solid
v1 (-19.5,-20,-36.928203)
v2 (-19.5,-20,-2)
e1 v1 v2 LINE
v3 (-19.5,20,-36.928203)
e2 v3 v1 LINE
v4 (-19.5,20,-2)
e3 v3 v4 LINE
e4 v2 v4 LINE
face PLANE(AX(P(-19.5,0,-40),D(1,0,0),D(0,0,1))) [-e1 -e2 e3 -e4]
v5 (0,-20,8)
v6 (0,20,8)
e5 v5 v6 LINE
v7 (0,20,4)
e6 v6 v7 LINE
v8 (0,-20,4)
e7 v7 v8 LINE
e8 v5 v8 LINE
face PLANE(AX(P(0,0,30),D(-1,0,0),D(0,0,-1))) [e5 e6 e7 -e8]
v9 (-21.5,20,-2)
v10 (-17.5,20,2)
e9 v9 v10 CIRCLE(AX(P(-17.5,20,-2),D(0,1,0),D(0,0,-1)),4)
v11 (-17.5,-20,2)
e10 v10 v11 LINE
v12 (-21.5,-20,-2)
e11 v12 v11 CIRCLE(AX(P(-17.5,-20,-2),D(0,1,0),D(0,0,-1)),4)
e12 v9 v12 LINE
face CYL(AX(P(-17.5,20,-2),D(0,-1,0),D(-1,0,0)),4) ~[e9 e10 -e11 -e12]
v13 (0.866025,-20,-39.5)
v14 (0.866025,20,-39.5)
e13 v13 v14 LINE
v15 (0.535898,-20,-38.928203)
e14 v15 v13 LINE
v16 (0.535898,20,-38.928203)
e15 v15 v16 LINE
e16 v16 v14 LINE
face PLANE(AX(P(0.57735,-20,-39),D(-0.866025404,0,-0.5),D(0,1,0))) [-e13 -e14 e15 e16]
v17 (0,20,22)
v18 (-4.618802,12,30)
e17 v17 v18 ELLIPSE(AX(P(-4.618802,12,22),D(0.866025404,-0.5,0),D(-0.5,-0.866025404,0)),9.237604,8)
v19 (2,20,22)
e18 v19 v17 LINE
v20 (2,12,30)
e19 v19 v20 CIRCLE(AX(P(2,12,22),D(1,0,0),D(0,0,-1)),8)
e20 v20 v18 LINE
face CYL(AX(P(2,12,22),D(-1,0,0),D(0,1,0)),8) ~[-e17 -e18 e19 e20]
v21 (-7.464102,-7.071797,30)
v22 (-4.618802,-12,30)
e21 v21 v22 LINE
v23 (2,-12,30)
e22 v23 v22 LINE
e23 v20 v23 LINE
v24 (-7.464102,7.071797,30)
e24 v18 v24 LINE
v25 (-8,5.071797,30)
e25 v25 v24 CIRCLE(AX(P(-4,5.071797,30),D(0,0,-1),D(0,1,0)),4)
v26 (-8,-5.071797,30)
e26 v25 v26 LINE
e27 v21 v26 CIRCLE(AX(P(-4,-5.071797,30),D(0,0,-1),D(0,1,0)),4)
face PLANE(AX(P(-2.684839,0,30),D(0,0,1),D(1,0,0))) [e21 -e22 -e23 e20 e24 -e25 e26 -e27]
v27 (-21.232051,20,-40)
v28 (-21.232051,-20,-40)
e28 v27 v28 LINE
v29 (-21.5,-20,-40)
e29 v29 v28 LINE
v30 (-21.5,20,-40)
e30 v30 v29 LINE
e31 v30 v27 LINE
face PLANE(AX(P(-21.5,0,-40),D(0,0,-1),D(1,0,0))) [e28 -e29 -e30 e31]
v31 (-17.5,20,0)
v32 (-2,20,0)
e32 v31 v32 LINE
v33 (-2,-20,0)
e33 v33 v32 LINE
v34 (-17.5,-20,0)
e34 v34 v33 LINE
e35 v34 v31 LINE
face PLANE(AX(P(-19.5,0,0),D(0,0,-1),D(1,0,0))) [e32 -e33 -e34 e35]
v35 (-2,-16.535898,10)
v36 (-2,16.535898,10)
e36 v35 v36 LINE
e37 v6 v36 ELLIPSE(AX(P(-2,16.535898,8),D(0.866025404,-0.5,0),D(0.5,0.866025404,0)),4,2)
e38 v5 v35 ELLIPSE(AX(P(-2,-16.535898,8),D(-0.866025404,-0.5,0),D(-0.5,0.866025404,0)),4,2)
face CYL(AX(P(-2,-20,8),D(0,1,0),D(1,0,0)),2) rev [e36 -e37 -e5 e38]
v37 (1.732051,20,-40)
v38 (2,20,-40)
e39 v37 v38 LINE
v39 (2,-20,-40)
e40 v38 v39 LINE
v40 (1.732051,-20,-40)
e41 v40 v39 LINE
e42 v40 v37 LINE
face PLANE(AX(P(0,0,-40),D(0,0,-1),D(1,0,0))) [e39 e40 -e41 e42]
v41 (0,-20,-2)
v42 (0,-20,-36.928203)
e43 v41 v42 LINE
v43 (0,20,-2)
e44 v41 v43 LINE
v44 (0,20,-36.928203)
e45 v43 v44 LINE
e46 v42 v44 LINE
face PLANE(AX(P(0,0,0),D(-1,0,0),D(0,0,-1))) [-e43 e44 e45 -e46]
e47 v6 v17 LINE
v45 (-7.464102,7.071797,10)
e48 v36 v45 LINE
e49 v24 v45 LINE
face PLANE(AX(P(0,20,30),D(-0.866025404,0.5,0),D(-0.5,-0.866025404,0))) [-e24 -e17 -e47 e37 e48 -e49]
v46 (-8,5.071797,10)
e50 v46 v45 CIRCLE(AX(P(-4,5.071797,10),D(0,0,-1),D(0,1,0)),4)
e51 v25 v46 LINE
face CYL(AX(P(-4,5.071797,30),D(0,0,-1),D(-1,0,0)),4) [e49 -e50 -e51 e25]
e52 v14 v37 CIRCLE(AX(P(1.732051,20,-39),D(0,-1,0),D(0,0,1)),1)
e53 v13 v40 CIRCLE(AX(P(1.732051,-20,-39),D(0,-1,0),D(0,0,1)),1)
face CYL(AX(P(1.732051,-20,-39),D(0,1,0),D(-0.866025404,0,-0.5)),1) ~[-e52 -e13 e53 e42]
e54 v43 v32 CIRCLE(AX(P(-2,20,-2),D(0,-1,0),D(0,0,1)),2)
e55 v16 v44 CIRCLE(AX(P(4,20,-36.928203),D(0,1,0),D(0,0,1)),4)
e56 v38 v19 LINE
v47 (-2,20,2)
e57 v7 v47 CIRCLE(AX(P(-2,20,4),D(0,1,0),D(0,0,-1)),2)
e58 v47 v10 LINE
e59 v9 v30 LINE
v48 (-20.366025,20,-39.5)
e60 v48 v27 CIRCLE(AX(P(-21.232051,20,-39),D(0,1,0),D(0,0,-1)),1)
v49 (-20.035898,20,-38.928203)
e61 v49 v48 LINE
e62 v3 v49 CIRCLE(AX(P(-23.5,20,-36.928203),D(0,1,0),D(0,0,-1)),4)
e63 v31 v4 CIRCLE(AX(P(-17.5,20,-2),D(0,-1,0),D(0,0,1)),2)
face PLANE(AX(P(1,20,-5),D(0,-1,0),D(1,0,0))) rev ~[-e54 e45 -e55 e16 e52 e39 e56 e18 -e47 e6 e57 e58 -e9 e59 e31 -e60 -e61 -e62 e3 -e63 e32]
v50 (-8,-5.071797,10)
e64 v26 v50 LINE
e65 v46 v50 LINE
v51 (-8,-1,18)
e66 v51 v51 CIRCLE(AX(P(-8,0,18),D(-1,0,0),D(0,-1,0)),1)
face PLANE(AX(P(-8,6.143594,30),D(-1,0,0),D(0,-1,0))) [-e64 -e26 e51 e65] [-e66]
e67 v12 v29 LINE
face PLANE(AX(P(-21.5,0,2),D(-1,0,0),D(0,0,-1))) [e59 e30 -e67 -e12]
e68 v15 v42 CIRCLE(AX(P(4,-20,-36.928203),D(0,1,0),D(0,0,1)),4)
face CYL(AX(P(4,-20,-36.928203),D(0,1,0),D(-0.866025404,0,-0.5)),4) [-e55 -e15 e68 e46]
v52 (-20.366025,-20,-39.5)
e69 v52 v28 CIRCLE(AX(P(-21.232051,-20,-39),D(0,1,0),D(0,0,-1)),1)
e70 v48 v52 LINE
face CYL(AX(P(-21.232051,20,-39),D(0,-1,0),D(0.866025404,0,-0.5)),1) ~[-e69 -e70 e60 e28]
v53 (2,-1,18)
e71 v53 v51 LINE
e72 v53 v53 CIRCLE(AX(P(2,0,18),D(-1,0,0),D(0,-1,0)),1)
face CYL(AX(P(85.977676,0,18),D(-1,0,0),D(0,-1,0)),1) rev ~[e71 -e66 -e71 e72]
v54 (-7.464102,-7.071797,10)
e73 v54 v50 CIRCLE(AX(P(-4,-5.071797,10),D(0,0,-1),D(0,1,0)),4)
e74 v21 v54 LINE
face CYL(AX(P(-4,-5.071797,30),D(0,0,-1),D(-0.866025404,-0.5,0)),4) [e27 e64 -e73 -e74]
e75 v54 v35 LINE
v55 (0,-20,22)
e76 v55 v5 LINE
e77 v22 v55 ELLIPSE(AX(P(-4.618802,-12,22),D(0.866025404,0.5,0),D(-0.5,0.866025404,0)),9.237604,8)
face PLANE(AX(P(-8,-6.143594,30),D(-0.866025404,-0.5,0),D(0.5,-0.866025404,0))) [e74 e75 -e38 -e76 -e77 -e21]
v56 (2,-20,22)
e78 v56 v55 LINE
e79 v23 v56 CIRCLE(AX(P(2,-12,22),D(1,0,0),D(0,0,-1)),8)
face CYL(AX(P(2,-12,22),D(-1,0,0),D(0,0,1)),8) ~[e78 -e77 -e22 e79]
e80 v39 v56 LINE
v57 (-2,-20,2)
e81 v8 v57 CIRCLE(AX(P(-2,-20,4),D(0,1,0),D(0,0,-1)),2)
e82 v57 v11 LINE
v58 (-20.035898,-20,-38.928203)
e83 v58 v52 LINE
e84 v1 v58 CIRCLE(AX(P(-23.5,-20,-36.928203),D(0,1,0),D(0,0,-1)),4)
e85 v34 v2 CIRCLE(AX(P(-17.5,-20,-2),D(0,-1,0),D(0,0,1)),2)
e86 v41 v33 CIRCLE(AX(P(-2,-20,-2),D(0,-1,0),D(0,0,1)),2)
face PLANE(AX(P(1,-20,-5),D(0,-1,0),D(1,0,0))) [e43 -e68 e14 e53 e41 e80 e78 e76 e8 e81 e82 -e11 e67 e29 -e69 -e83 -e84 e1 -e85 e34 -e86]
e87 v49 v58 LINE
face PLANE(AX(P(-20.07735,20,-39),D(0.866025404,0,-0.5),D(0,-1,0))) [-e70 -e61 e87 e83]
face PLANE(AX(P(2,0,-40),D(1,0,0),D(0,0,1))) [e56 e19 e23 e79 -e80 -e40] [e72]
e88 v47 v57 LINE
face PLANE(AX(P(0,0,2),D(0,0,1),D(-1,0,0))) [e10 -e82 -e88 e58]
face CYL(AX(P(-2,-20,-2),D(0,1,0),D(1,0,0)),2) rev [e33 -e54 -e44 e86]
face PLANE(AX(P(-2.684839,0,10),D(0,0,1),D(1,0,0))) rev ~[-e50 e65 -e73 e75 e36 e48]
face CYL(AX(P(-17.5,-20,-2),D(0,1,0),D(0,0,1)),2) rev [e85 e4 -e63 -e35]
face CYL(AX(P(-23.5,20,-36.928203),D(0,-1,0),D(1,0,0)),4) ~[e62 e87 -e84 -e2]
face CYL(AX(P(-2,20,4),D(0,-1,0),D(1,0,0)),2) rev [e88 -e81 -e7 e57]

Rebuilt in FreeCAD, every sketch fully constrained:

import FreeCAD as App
import Part
import Sketcher
from FreeCAD import Vector
Q = App.Units.Quantity


def edges_at(feature, points):
    """Names of the edges that pass closest to the given points."""
    edges = feature.Shape.Edges
    near = lambda p: min(range(len(edges)), key=lambda i: edges[i].distToShape(Part.Vertex(*p))[0])
    return sorted({f"Edge{near(p) + 1}" for p in points})


def add_polygon(sketch, points):
    """Adds a closed chain of lines whose ends are joined by coincident constraints."""
    first, n = sketch.GeometryCount, len(points)
    for a, b in zip(points, points[1:] + points[:1]):
        sketch.addGeometry(Part.LineSegment(App.Vector(*a, 0), App.Vector(*b, 0)), False)
    for i in range(n):
        sketch.addConstraint(Sketcher.Constraint("Coincident", first + i, 2, first + (i + 1) % n, 1))

doc = App.newDocument("Part")
body = doc.addObject("PartDesign::Body", "Body")

sketch1 = body.newObject("Sketcher::SketchObject", "Sketch")
sketch1.AttachmentSupport = (doc.getObject("XZ_Plane"), [""])
sketch1.MapMode = "FlatFace"
add_polygon(sketch1, [(0, -40), (2, -40), (2, 30), (0, 30), (0, 2), (-21.5, 2), (-21.5, -40), (-19.5, -40), (-19.5, 0), (0, 0)])
sketch1.addConstraint([
    Sketcher.Constraint("Horizontal", 0),
    Sketcher.Constraint("Vertical", 1),
    Sketcher.Constraint("Horizontal", 2),
    Sketcher.Constraint("Vertical", 3),
    Sketcher.Constraint("Horizontal", 4),
    Sketcher.Constraint("Vertical", 5),
    Sketcher.Constraint("Horizontal", 6),
    Sketcher.Constraint("Vertical", 7),
    Sketcher.Constraint("Horizontal", 8),
    Sketcher.Constraint("Vertical", 9),
    Sketcher.Constraint("Coincident", 8, 2, -1, 1),
    Sketcher.Constraint("PointOnObject", 2, 2, -2),
    Sketcher.Constraint("Horizontal", 0, 2, 5, 2),
    Sketcher.Constraint("Equal", 2, 6),
    Sketcher.Constraint("DistanceX", 0, 1, 0, 2, Q("2 mm")),
    Sketcher.Constraint("DistanceY", 1, 1, 1, 2, Q("70 mm")),
    Sketcher.Constraint("DistanceY", 3, 2, 3, 1, Q("28 mm")),
    Sketcher.Constraint("DistanceY", 7, 1, 7, 2, Q("40 mm")),
    Sketcher.Constraint("DistanceX", 4, 2, 4, 1, Q("21.5 mm")),
])
pad1 = body.newObject("PartDesign::Pad", "Pad")
pad1.Profile = sketch1
pad1.Length = 40
pad1.Midplane = True

sketch2 = body.newObject("Sketcher::SketchObject", "Sketch001")
sketch2.AttachmentSupport = (doc.getObject("XY_Plane"), [""])
sketch2.MapMode = "FlatFace"
sketch2.AttachmentOffset = App.Placement(Vector(0, 0, 30), App.Rotation())
add_polygon(sketch2, [(0, -20), (0, 20), (-8, 6), (-8, -6)])
sketch2.addConstraint([
    Sketcher.Constraint("Vertical", 0),
    Sketcher.Constraint("Vertical", 2),
    Sketcher.Constraint("Symmetric", 0, 2, 3, 2, -1, 1),
    Sketcher.Constraint("Equal", 1, 3),
    Sketcher.Constraint("DistanceY", 0, 1, 0, 2, Q("40 mm")),
    Sketcher.Constraint("Angle", 1, Q("-120 deg")),
    Sketcher.Constraint("Distance", 1, Q("16 mm")),
])
pad2 = body.newObject("PartDesign::Pad", "Pad001")
pad2.Profile = sketch2
pad2.Length = 20
pad2.Reversed = True

sketch3 = body.newObject("Sketcher::SketchObject", "Sketch002")
sketch3.AttachmentSupport = (doc.getObject("YZ_Plane"), [""])
sketch3.MapMode = "FlatFace"
sketch3.AttachmentOffset = App.Placement(Vector(0, 0, 2), App.Rotation())
sketch3.addGeometry(Part.Circle(Vector(0, 18, 0), Vector(0, 0, 1), 1), False)
sketch3.addConstraint([
    Sketcher.Constraint("PointOnObject", 0, 3, -2),
    Sketcher.Constraint("Diameter", 0, Q("2 mm")),
    Sketcher.Constraint("DistanceY", -1, 1, 0, 3, Q("18 mm")),
])
doc.recompute()
hole = body.newObject("PartDesign::Hole", "Hole")
hole.Profile = sketch3
hole.ThreadType = "None"
hole.Diameter = 2
hole.DepthType = "ThroughAll"
doc.recompute()

chamfer = body.newObject("PartDesign::Chamfer", "Chamfer")
chamfer.Base = (hole, edges_at(hole, [(-19.5, 0, -40)]))
chamfer.ChamferType = "Two distances"
chamfer.Size = 2
chamfer.Size2 = 1.154701
chamfer.FlipDirection = True
doc.recompute()

chamfer2 = body.newObject("PartDesign::Chamfer", "Chamfer001")
chamfer2.Base = (chamfer, edges_at(chamfer, [(0, 0, -40)]))
chamfer2.ChamferType = "Two distances"
chamfer2.Size = 2
chamfer2.Size2 = 1.154701
doc.recompute()

fillet = body.newObject("PartDesign::Fillet", "Fillet")
fillet.Base = (chamfer2, edges_at(chamfer2, [(-20.655, 0, -40), (1.155, 0, -40)]))
fillet.Radius = 1
doc.recompute()

fillet2 = body.newObject("PartDesign::Fillet", "Fillet001")
fillet2.Base = (fillet, edges_at(fillet, [
    (0, 0, 2),
    (-19.5, 0, 0),
    (0, 0, 0),
    (0, 0, 10),
]))
fillet2.Radius = 2
doc.recompute()

fillet3 = body.newObject("PartDesign::Fillet", "Fillet002")
fillet3.Base = (fillet2, edges_at(fillet2, [
    (-21.5, 0, 2),
    (-8, -6.144, 20),
    (-8, 6.144, 20),
    (-19.5, 0, -38),
    (0, 0, -38),
]))
fillet3.Radius = 4
doc.recompute()

fillet4 = body.newObject("PartDesign::Fillet", "Fillet003")
fillet4.Base = (fillet3, edges_at(fillet3, [(1, -20, 30), (1, 20, 30)]))
fillet4.Radius = 8

doc.recompute()
